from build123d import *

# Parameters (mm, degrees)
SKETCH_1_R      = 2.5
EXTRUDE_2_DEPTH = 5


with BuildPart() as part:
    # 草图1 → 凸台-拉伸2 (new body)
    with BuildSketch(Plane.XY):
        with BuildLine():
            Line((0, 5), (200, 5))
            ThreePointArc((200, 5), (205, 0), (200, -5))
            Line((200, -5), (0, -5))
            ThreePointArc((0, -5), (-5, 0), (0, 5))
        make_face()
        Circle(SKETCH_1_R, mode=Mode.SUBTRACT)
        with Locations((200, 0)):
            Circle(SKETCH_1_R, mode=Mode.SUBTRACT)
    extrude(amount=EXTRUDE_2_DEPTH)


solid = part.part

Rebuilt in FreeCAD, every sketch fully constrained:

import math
import FreeCAD as App
import Part
import Sketcher
from FreeCAD import Vector
Q = App.Units.Quantity

doc = App.newDocument("Part")
body = doc.addObject("PartDesign::Body", "Body")

sketch1 = body.newObject("Sketcher::SketchObject", "Sketch")
sketch1.AttachmentSupport = (doc.getObject("XY_Plane"), [""])
sketch1.MapMode = "FlatFace"
sketch1.addGeometry(Part.LineSegment(Vector(200, 5, 0), Vector(0, 5, 0)), False)
sketch1.addGeometry(Part.ArcOfCircle(Part.Circle(Vector(0, 0, 0), Vector(0, 0, 1), 5), math.radians(90), math.radians(270)), False)
sketch1.addGeometry(Part.LineSegment(Vector(0, -5, 0), Vector(200, -5, 0)), False)
sketch1.addGeometry(Part.ArcOfCircle(Part.Circle(Vector(200, 0, 0), Vector(0, 0, 1), 5), math.radians(-90), math.radians(90)), False)
sketch1.addGeometry(Part.Circle(Vector(200, 0, 0), Vector(0, 0, 1), 2.5), False)
sketch1.addGeometry(Part.Circle(Vector(0, 0, 0), Vector(0, 0, 1), 2.5), False)
sketch1.addConstraint(Sketcher.Constraint("Tangent", 0, 2, 1, 1))
sketch1.addConstraint(Sketcher.Constraint("Tangent", 1, 2, 2, 1))
sketch1.addConstraint(Sketcher.Constraint("Tangent", 2, 2, 3, 1))
sketch1.addConstraint(Sketcher.Constraint("Tangent", 3, 2, 0, 1))
sketch1.addConstraint(Sketcher.Constraint("Horizontal", 0))
sketch1.addConstraint(Sketcher.Constraint("Horizontal", 2))
sketch1.addConstraint(Sketcher.Constraint("Coincident", 1, 3, -1, 1))
sketch1.addConstraint(Sketcher.Constraint("Coincident", 5, 3, -1, 1))
sketch1.addConstraint(Sketcher.Constraint("Coincident", 4, 3, 3, 3))
sketch1.addConstraint(Sketcher.Constraint("Equal", 4, 5))
sketch1.addConstraint(Sketcher.Constraint("Diameter", 4, Q("5 mm")))
sketch1.addConstraint(Sketcher.Constraint("Radius", 1, Q("5 mm")))
sketch1.addConstraint(Sketcher.Constraint("DistanceX", 0, 2, 0, 1, Q("200 mm")))
pad1 = body.newObject("PartDesign::Pad", "Pad")
pad1.Profile = sketch1
pad1.Length = 5

doc.recompute()
